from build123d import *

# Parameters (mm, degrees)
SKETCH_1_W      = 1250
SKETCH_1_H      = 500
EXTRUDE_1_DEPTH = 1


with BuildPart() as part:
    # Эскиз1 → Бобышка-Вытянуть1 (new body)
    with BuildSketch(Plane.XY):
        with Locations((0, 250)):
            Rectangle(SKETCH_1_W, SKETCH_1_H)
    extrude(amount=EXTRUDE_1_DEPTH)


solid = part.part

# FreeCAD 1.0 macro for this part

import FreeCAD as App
import Part
import Sketcher

V = App.Vector
Q = App.Units.Quantity


def add_polygon(sketch, points):
    """Adds a closed chain of lines whose ends are joined by coincident constraints."""
    first, n = sketch.GeometryCount, len(points)
    for a, b in zip(points, points[1:] + points[:1]):
        sketch.addGeometry(Part.LineSegment(App.Vector(*a, 0), App.Vector(*b, 0)), False)
    for i in range(n):
        sketch.addConstraint(Sketcher.Constraint("Coincident", first + i, 2, first + (i + 1) % n, 1))

doc = App.newDocument("Part")
body = doc.addObject("PartDesign::Body", "Body")

# Sketch on XY plane
sketch1 = body.newObject("Sketcher::SketchObject", "Sketch")
sketch1.AttachmentSupport = (doc.getObject("XY_Plane"), [""])
sketch1.MapMode = "FlatFace"
add_polygon(sketch1, [(-625, 500), (-625, 0), (625, 0), (625, 500)])  # lines 0-3
sketch1.addConstraint(Sketcher.Constraint("Vertical", 0))
sketch1.addConstraint(Sketcher.Constraint("Horizontal", 1))
sketch1.addConstraint(Sketcher.Constraint("Vertical", 2))
sketch1.addConstraint(Sketcher.Constraint("Horizontal", 3))
sketch1.addConstraint(Sketcher.Constraint("Symmetric", 0, 2, 1, 2, -1, 1))
sketch1.addConstraint(Sketcher.Constraint("DistanceX", 1, 1, 1, 2, Q("1250 mm")))
sketch1.addConstraint(Sketcher.Constraint("DistanceY", 0, 2, 0, 1, Q("500 mm")))
pad1 = body.newObject("PartDesign::Pad", "Pad")
pad1.Profile = sketch1
pad1.Length = 1

doc.recompute()
